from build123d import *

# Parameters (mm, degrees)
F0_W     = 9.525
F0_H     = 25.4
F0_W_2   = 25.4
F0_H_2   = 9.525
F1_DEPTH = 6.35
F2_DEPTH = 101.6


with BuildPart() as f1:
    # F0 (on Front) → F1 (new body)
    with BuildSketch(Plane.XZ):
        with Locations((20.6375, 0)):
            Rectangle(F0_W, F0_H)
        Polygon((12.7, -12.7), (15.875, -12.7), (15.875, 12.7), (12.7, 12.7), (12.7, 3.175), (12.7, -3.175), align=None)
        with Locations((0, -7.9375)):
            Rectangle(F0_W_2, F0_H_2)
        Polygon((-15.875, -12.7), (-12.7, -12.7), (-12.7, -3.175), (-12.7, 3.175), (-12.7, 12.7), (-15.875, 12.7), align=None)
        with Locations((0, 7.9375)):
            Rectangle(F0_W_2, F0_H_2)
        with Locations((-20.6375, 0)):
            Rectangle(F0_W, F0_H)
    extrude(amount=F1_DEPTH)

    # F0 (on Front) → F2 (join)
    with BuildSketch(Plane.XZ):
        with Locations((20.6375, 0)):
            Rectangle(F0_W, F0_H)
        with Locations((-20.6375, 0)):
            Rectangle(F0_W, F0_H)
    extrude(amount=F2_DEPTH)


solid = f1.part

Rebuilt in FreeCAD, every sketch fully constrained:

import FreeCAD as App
import Part
import Sketcher
Q = App.Units.Quantity

doc = App.newDocument("Part")
body = doc.addObject("PartDesign::Body", "Body")

# Sketch on XZ plane
sketch1 = body.newObject("Sketcher::SketchObject", "Sketch")
sketch1.AttachmentSupport = (doc.getObject("XZ_Plane"), [""])
sketch1.MapMode = "FlatFace"
sketch1.addGeometry(Part.LineSegment(App.Vector(25, -13, 0), App.Vector(25, 13, 0)), False)
sketch1.addGeometry(Part.LineSegment(App.Vector(25, 13, 0), App.Vector(-25, 13, 0)), False)
sketch1.addGeometry(Part.LineSegment(App.Vector(-25, 13, 0), App.Vector(-25, -13, 0)), False)
sketch1.addGeometry(Part.LineSegment(App.Vector(-25, -13, 0), App.Vector(25, -13, 0)), False)
sketch1.addGeometry(Part.LineSegment(App.Vector(13, 3, 0), App.Vector(13, -3, 0)), False)
sketch1.addGeometry(Part.LineSegment(App.Vector(13, -3, 0), App.Vector(-13, -3, 0)), False)
sketch1.addGeometry(Part.LineSegment(App.Vector(-13, -3, 0), App.Vector(-13, 3, 0)), False)
sketch1.addGeometry(Part.LineSegment(App.Vector(-13, 3, 0), App.Vector(13, 3, 0)), False)
sketch1.addConstraint(Sketcher.Constraint("Coincident", 0, 2, 1, 1))
sketch1.addConstraint(Sketcher.Constraint("Coincident", 1, 2, 2, 1))
sketch1.addConstraint(Sketcher.Constraint("Coincident", 2, 2, 3, 1))
sketch1.addConstraint(Sketcher.Constraint("Coincident", 3, 2, 0, 1))
sketch1.addConstraint(Sketcher.Constraint("Coincident", 4, 2, 5, 1))
sketch1.addConstraint(Sketcher.Constraint("Coincident", 5, 2, 6, 1))
sketch1.addConstraint(Sketcher.Constraint("Coincident", 6, 2, 7, 1))
sketch1.addConstraint(Sketcher.Constraint("Coincident", 7, 2, 4, 1))
sketch1.addConstraint(Sketcher.Constraint("Vertical", 0))
sketch1.addConstraint(Sketcher.Constraint("Horizontal", 1))
sketch1.addConstraint(Sketcher.Constraint("Vertical", 2))
sketch1.addConstraint(Sketcher.Constraint("Horizontal", 3))
sketch1.addConstraint(Sketcher.Constraint("Vertical", 4))
sketch1.addConstraint(Sketcher.Constraint("Horizontal", 5))
sketch1.addConstraint(Sketcher.Constraint("Vertical", 6))
sketch1.addConstraint(Sketcher.Constraint("Horizontal", 7))
sketch1.addConstraint(Sketcher.Constraint("Symmetric", 0, 2, 2, 2, -1, 1))
sketch1.addConstraint(Sketcher.Constraint("Symmetric", 4, 2, 6, 2, -1, 1))
sketch1.addConstraint(Sketcher.Constraint("Equal", 7, 0))
sketch1.addConstraint(Sketcher.Constraint("DistanceX", 1, 2, 1, 1, Q("2 in")))
sketch1.addConstraint(Sketcher.Constraint("DistanceX", 5, 2, 5, 1, Q("1 in")))
sketch1.addConstraint(Sketcher.Constraint("DistanceY", 4, 2, 4, 1, Q("0.25 in")))
pad1 = body.newObject("PartDesign::Pad", "Pad")
pad1.Profile = sketch1
pad1.Length = Q("0.25 in")

# Sketch on XZ plane
sketch2 = body.newObject("Sketcher::SketchObject", "Sketch001")
sketch2.AttachmentSupport = (doc.getObject("XZ_Plane"), [""])
sketch2.MapMode = "FlatFace"
sketch2.addGeometry(Part.LineSegment(App.Vector(16, 13, 0), App.Vector(16, -13, 0)), False)
sketch2.addGeometry(Part.LineSegment(App.Vector(16, -13, 0), App.Vector(25, -13, 0)), False)
sketch2.addGeometry(Part.LineSegment(App.Vector(25, -13, 0), App.Vector(25, 13, 0)), False)
sketch2.addGeometry(Part.LineSegment(App.Vector(25, 13, 0), App.Vector(16, 13, 0)), False)
sketch2.addGeometry(Part.LineSegment(App.Vector(-25, 13, 0), App.Vector(-25, -13, 0)), False)
sketch2.addGeometry(Part.LineSegment(App.Vector(-25, -13, 0), App.Vector(-16, -13, 0)), False)
sketch2.addGeometry(Part.LineSegment(App.Vector(-16, -13, 0), App.Vector(-16, 13, 0)), False)
sketch2.addGeometry(Part.LineSegment(App.Vector(-16, 13, 0), App.Vector(-25, 13, 0)), False)
sketch2.addConstraint(Sketcher.Constraint("Coincident", 0, 2, 1, 1))
sketch2.addConstraint(Sketcher.Constraint("Coincident", 1, 2, 2, 1))
sketch2.addConstraint(Sketcher.Constraint("Coincident", 2, 2, 3, 1))
sketch2.addConstraint(Sketcher.Constraint("Coincident", 3, 2, 0, 1))
sketch2.addConstraint(Sketcher.Constraint("Coincident", 4, 2, 5, 1))
sketch2.addConstraint(Sketcher.Constraint("Coincident", 5, 2, 6, 1))
sketch2.addConstraint(Sketcher.Constraint("Coincident", 6, 2, 7, 1))
sketch2.addConstraint(Sketcher.Constraint("Coincident", 7, 2, 4, 1))
sketch2.addConstraint(Sketcher.Constraint("Vertical", 0))
sketch2.addConstraint(Sketcher.Constraint("Horizontal", 1))
sketch2.addConstraint(Sketcher.Constraint("Vertical", 2))
sketch2.addConstraint(Sketcher.Constraint("Horizontal", 3))
sketch2.addConstraint(Sketcher.Constraint("Vertical", 4))
sketch2.addConstraint(Sketcher.Constraint("Horizontal", 5))
sketch2.addConstraint(Sketcher.Constraint("Vertical", 6))
sketch2.addConstraint(Sketcher.Constraint("Horizontal", 7))
sketch2.addConstraint(Sketcher.Constraint("Symmetric", 2, 2, 4, 2, -1, 1))
sketch2.addConstraint(Sketcher.Constraint("Symmetric", 0, 2, 6, 2, -1, 1))
sketch2.addConstraint(Sketcher.Constraint("Horizontal", 1, 2, 4, 2))
sketch2.addConstraint(Sketcher.Constraint("DistanceY", 0, 2, 0, 1, Q("1 in")))
sketch2.addConstraint(Sketcher.Constraint("DistanceX", -1, 1, 1, 2, Q("1 in")))
sketch2.addConstraint(Sketcher.Constraint("DistanceX", 1, 1, 1, 2, Q("0.375 in")))
pad2 = body.newObject("PartDesign::Pad", "Pad001")
pad2.Profile = sketch2
pad2.Length = Q("4 in")

doc.recompute()
